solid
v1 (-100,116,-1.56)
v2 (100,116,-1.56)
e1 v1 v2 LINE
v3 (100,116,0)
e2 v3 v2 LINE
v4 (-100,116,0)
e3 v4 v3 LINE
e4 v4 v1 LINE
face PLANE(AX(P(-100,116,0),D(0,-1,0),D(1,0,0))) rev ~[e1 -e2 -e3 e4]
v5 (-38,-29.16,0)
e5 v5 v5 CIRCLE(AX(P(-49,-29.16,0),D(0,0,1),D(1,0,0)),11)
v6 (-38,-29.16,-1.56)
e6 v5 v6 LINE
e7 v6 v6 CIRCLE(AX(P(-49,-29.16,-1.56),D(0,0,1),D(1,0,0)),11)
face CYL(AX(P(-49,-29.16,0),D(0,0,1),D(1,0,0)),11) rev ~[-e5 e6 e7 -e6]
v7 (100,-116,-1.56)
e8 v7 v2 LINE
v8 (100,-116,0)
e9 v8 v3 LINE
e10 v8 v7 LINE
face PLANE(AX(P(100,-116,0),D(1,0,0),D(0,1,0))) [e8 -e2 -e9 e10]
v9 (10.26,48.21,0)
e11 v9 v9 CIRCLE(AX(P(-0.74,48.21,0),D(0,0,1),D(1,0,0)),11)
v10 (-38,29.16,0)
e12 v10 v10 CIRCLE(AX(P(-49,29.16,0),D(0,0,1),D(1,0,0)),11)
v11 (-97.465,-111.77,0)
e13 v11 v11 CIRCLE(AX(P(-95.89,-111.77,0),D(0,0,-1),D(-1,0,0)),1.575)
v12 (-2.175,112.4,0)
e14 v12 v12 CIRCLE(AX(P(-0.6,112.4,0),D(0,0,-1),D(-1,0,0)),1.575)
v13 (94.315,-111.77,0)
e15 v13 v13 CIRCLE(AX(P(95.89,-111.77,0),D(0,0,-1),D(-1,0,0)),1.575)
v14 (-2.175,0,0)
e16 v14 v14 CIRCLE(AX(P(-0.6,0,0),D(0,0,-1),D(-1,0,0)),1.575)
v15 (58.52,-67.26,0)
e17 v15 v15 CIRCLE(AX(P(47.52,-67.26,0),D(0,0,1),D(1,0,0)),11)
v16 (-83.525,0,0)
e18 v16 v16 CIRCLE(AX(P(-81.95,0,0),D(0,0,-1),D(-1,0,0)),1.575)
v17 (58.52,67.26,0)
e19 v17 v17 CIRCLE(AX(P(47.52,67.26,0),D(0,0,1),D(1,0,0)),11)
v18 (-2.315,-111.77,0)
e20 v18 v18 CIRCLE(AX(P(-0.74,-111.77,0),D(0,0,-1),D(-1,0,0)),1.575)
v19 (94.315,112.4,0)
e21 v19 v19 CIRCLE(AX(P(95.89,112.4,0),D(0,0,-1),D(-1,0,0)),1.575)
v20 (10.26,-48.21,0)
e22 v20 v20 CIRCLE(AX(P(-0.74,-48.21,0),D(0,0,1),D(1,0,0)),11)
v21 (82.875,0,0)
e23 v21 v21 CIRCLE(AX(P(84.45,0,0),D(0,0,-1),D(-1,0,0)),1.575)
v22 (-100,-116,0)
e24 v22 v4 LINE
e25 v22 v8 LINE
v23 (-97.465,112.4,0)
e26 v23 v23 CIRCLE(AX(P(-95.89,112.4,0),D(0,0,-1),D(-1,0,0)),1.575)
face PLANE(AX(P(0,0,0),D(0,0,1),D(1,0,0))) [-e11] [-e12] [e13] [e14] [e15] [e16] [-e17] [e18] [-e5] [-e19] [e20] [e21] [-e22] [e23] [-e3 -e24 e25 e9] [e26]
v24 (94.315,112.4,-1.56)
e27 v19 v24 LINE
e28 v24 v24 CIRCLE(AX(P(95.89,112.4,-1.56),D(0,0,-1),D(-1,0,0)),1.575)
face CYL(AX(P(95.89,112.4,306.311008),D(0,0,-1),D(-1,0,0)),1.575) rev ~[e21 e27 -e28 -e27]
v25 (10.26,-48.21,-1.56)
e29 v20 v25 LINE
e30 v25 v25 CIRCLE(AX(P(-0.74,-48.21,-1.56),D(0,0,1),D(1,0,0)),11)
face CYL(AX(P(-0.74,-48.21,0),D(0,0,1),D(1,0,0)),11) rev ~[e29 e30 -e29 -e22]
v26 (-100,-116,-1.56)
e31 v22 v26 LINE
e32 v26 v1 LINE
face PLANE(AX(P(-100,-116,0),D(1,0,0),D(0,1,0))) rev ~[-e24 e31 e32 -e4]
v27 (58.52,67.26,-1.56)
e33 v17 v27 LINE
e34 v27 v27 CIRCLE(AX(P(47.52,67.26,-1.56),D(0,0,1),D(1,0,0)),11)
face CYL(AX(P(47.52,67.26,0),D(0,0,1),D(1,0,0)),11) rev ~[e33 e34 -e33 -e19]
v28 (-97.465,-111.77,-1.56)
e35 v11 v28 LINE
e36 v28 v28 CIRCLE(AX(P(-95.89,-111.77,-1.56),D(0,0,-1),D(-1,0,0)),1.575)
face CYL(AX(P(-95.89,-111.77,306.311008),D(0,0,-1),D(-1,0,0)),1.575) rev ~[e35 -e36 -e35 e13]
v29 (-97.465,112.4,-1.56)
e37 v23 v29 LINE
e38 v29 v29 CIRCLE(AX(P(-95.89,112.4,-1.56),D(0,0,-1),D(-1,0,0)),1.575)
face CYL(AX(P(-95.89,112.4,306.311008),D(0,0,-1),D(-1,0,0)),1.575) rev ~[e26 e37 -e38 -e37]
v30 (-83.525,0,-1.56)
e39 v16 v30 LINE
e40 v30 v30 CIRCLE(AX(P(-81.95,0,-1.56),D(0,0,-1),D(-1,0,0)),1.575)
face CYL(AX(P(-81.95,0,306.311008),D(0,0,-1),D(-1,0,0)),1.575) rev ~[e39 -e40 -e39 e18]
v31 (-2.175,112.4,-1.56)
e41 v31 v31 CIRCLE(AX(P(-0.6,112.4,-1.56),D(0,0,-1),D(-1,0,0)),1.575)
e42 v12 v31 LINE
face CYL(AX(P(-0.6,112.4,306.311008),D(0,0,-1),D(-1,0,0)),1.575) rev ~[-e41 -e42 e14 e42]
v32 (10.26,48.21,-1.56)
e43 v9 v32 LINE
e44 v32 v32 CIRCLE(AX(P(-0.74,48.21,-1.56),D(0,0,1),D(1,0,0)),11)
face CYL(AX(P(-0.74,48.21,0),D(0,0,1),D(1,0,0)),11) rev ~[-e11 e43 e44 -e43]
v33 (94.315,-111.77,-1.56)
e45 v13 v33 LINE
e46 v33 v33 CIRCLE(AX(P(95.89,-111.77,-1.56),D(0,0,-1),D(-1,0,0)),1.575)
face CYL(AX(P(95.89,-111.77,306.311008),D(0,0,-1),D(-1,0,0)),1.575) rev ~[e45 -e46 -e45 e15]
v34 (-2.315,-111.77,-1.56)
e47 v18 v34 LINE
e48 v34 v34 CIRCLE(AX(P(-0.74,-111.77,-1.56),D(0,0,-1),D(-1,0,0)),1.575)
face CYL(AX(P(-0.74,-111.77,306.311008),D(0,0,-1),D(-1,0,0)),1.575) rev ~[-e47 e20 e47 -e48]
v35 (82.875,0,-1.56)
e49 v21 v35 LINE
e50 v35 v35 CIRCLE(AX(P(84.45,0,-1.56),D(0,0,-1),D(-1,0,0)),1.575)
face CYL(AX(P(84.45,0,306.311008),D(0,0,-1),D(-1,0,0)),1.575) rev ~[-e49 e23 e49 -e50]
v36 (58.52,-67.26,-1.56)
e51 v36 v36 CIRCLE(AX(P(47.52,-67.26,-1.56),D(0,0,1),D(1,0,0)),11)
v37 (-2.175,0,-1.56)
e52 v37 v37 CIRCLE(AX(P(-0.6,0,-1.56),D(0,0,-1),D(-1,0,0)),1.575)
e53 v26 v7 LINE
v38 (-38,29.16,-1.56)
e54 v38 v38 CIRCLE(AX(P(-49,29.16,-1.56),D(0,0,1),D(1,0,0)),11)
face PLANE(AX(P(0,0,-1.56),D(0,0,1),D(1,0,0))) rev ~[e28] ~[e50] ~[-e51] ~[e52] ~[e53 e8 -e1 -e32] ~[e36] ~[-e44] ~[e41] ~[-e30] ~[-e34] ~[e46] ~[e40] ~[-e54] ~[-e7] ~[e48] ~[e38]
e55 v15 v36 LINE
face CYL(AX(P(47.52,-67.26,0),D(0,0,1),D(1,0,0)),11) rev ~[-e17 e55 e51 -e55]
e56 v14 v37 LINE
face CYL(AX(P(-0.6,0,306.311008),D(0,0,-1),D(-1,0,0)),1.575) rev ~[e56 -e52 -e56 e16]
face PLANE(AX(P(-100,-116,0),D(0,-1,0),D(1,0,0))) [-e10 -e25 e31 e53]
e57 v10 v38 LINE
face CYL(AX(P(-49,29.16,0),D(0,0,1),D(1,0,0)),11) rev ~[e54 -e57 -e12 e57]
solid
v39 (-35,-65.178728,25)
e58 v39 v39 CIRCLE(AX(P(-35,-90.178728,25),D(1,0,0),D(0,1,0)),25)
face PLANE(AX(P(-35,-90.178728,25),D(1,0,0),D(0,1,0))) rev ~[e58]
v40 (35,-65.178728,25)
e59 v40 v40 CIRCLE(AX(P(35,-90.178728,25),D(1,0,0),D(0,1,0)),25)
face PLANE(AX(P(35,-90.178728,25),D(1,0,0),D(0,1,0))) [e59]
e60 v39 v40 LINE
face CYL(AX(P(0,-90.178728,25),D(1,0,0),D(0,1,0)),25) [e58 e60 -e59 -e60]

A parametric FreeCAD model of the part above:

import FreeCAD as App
import Part
import Sketcher


def add_polygon(sketch, points):
    """Adds a closed chain of lines whose ends are joined by coincident constraints."""
    first, n = sketch.GeometryCount, len(points)
    for a, b in zip(points, points[1:] + points[:1]):
        sketch.addGeometry(Part.LineSegment(App.Vector(*a, 0), App.Vector(*b, 0)), False)
    for i in range(n):
        sketch.addConstraint(Sketcher.Constraint("Coincident", first + i, 2, first + (i + 1) % n, 1))

doc = App.newDocument("Part")
params = doc.addObject("Spreadsheet::Sheet", "Params")
for row, (alias, value) in enumerate([
    ("sketch1_diameter", "22 mm"),
    ("sketch1_width", "200 mm"),
    ("sketch1_height", "232 mm"),
    ("pad1_length", "1.56 mm"),
    ("sketch2_diameter", "3.15 mm"),
    ("hole_diameter", "3.15 mm"),
    ("sketch3_diameter", "3.15 mm"),
    ("hole2_diameter", "3.15 mm"),
    ("sketch4_diameter", "50 mm"),
    ("pad2_length", "70 mm"),
], start=1):
    params.set(f"A{row}", alias)
    params.set(f"B{row}", "=" + value)
    params.setAlias(f"B{row}", alias)

body = doc.addObject("PartDesign::Body", "Body")

# Sketch on XY plane
sketch1 = body.newObject("Sketcher::SketchObject", "Sketch")
sketch1.AttachmentSupport = (doc.getObject("XY_Plane"), [""])
sketch1.MapMode = "FlatFace"
add_polygon(sketch1, [(-100, 116), (-100, -116), (100, -116), (100, 116)])  # lines 0-3
sketch1.addGeometry(Part.Circle(App.Vector(-0.74, -48.21, 0), App.Vector(0, 0, 1), 11), False)  # 4
sketch1.addGeometry(Part.Circle(App.Vector(-49, -29.16, 0), App.Vector(0, 0, 1), 11), False)  # 5
sketch1.addGeometry(Part.Circle(App.Vector(47.52, -67.26, 0), App.Vector(0, 0, 1), 11), False)  # 6
sketch1.addGeometry(Part.Circle(App.Vector(-49, 29.16, 0), App.Vector(0, 0, 1), 11), False)  # 7
sketch1.addGeometry(Part.Circle(App.Vector(-0.74, 48.21, 0), App.Vector(0, 0, 1), 11), False)  # 8
sketch1.addGeometry(Part.Circle(App.Vector(47.52, 67.26, 0), App.Vector(0, 0, 1), 11), False)  # 9
sketch1.addConstraint(Sketcher.Constraint("Vertical", 0))
sketch1.addConstraint(Sketcher.Constraint("Horizontal", 1))
sketch1.addConstraint(Sketcher.Constraint("Vertical", 2))
sketch1.addConstraint(Sketcher.Constraint("Horizontal", 3))
sketch1.addConstraint(Sketcher.Constraint("Equal", 4, 5))
sketch1.addConstraint(Sketcher.Constraint("Equal", 5, 6))
sketch1.addConstraint(Sketcher.Constraint("Equal", 6, 7))
sketch1.addConstraint(Sketcher.Constraint("Equal", 7, 8))
sketch1.addConstraint(Sketcher.Constraint("Equal", 8, 9))
sketch1.addConstraint(Sketcher.Constraint("Symmetric", 0, 2, 2, 2, -1, 1))
sketch1.addConstraint(Sketcher.Constraint("Symmetric", 5, 3, 7, 3, -1))
sketch1.addConstraint(Sketcher.Constraint("Symmetric", 4, 3, 8, 3, -1))
sketch1.addConstraint(Sketcher.Constraint("Symmetric", 6, 3, 9, 3, -1))
sketch1.addConstraint(Sketcher.Constraint("Diameter", 4, 22.0))
sketch1.addConstraint(Sketcher.Constraint("DistanceX", 1, 1, 1, 2, 200.0))
sketch1.addConstraint(Sketcher.Constraint("DistanceY", 0, 2, 0, 1, 232.0))
sketch1.addConstraint(Sketcher.Constraint("DistanceX", 5, 3, -1, 1, 49.0))
sketch1.addConstraint(Sketcher.Constraint("DistanceY", 6, 3, 5, 3, 38.1))
sketch1.addConstraint(Sketcher.Constraint("DistanceX", 4, 3, -1, 1, 0.74))
sketch1.addConstraint(Sketcher.Constraint("DistanceY", 4, 3, -1, 1, 48.21))
sketch1.addConstraint(Sketcher.Constraint("DistanceY", 5, 3, -1, 1, 29.16))
sketch1.addConstraint(Sketcher.Constraint("DistanceX", -1, 1, 6, 3, 47.52))
sketch1.setExpression("Constraints[17]", "Params.sketch1_diameter")
sketch1.setExpression("Constraints[18]", "Params.sketch1_width")
sketch1.setExpression("Constraints[19]", "Params.sketch1_height")
pad1 = body.newObject("PartDesign::Pad", "Pad")
pad1.Profile = sketch1
pad1.setExpression("Length", "Params.pad1_length")
pad1.Reversed = True

# Sketch on XY plane
sketch2 = body.newObject("Sketcher::SketchObject", "Sketch001")
sketch2.AttachmentSupport = (doc.getObject("XY_Plane"), [""])
sketch2.MapMode = "FlatFace"
sketch2.addGeometry(Part.Circle(App.Vector(-95.89, 112.4, 0), App.Vector(0, 0, 1), 1.575), False)
sketch2.addConstraint(Sketcher.Constraint("Diameter", 0, 3.15))
sketch2.addConstraint(Sketcher.Constraint("DistanceY", -1, 1, 0, 3, 112.4))
sketch2.addConstraint(Sketcher.Constraint("DistanceX", 0, 3, -1, 1, 95.89))
sketch2.setExpression("Constraints[0]", "Params.sketch2_diameter")
doc.recompute()
hole = body.newObject("PartDesign::Hole", "Hole")
hole.Profile = sketch2
hole.ThreadType = "None"
hole.setExpression("Diameter", "Params.hole_diameter")
hole.DepthType = "ThroughAll"

# Sketch on XY plane
sketch3 = body.newObject("Sketcher::SketchObject", "Sketch002")
sketch3.AttachmentSupport = (doc.getObject("XY_Plane"), [""])
sketch3.MapMode = "FlatFace"
sketch3.addGeometry(Part.Circle(App.Vector(-0.6, 112.4, 0), App.Vector(0, 0, 1), 1.575), False)
sketch3.addGeometry(Part.Circle(App.Vector(95.89, 112.4, 0), App.Vector(0, 0, 1), 1.575), False)
sketch3.addGeometry(Part.Circle(App.Vector(84.45, 0, 0), App.Vector(0, 0, 1), 1.575), False)
sketch3.addGeometry(Part.Circle(App.Vector(-81.95, 0, 0), App.Vector(0, 0, 1), 1.575), False)
sketch3.addGeometry(Part.Circle(App.Vector(-0.6, 0, 0), App.Vector(0, 0, 1), 1.575), False)
sketch3.addGeometry(Part.Circle(App.Vector(-0.74, -111.77, 0), App.Vector(0, 0, 1), 1.575), False)
sketch3.addGeometry(Part.Circle(App.Vector(-95.89, -111.77, 0), App.Vector(0, 0, 1), 1.575), False)
sketch3.addGeometry(Part.Circle(App.Vector(95.89, -111.77, 0), App.Vector(0, 0, 1), 1.575), False)
sketch3.addConstraint(Sketcher.Constraint("Equal", 0, 1))
sketch3.addConstraint(Sketcher.Constraint("Equal", 1, 2))
sketch3.addConstraint(Sketcher.Constraint("Equal", 2, 3))
sketch3.addConstraint(Sketcher.Constraint("Equal", 3, 4))
sketch3.addConstraint(Sketcher.Constraint("Equal", 4, 5))
sketch3.addConstraint(Sketcher.Constraint("Equal", 5, 6))
sketch3.addConstraint(Sketcher.Constraint("Equal", 6, 7))
sketch3.addConstraint(Sketcher.Constraint("Symmetric", 6, 3, 7, 3, -2))
sketch3.addConstraint(Sketcher.Constraint("PointOnObject", 2, 3, -1))
sketch3.addConstraint(Sketcher.Constraint("PointOnObject", 3, 3, -1))
sketch3.addConstraint(Sketcher.Constraint("PointOnObject", 4, 3, -1))
sketch3.addConstraint(Sketcher.Constraint("Horizontal", 0, 3, 1, 3))
sketch3.addConstraint(Sketcher.Constraint("Horizontal", 5, 3, 6, 3))
sketch3.addConstraint(Sketcher.Constraint("Vertical", 0, 3, 4, 3))
sketch3.addConstraint(Sketcher.Constraint("Vertical", 1, 3, 7, 3))
sketch3.addConstraint(Sketcher.Constraint("Diameter", 0, 3.15))
sketch3.addConstraint(Sketcher.Constraint("DistanceX", 0, 3, -1, 1, 0.6))
sketch3.addConstraint(Sketcher.Constraint("DistanceY", -1, 1, 0, 3, 112.4))
sketch3.addConstraint(Sketcher.Constraint("DistanceX", 3, 3, 2, 3, 166.4))
sketch3.addConstraint(Sketcher.Constraint("DistanceX", -1, 1, 1, 3, 95.89))
sketch3.addConstraint(Sketcher.Constraint("DistanceX", -1, 1, 2, 3, 84.45))
sketch3.addConstraint(Sketcher.Constraint("DistanceX", 5, 3, -1, 1, 0.74))
sketch3.addConstraint(Sketcher.Constraint("DistanceY", 5, 3, -1, 1, 111.77))
sketch3.setExpression("Constraints[15]", "Params.sketch3_diameter")
doc.recompute()
hole2 = body.newObject("PartDesign::Hole", "Hole001")
hole2.Profile = sketch3
hole2.ThreadType = "None"
hole2.setExpression("Diameter", "Params.hole2_diameter")
hole2.DepthType = "ThroughAll"
body2 = doc.addObject("PartDesign::Body", "Body001")

# Sketch on YZ plane
sketch4 = body2.newObject("Sketcher::SketchObject", "Sketch003")
sketch4.AttachmentSupport = (doc.getObject("YZ_Plane001"), [""])
sketch4.MapMode = "FlatFace"
sketch4.addGeometry(Part.Circle(App.Vector(-90.178728, 25, 0), App.Vector(0, 0, 1), 25), False)
sketch4.addConstraint(Sketcher.Constraint("Diameter", 0, 50.0))
sketch4.addConstraint(Sketcher.Constraint("DistanceY", -1, 1, 0, 3, 25.0))
sketch4.addConstraint(Sketcher.Constraint("DistanceX", 0, 3, -1, 1, 90.178728))
sketch4.setExpression("Constraints[0]", "Params.sketch4_diameter")
pad2 = body2.newObject("PartDesign::Pad", "Pad001")
pad2.Profile = sketch4
pad2.setExpression("Length", "Params.pad2_length")
pad2.Midplane = True

doc.recompute()
